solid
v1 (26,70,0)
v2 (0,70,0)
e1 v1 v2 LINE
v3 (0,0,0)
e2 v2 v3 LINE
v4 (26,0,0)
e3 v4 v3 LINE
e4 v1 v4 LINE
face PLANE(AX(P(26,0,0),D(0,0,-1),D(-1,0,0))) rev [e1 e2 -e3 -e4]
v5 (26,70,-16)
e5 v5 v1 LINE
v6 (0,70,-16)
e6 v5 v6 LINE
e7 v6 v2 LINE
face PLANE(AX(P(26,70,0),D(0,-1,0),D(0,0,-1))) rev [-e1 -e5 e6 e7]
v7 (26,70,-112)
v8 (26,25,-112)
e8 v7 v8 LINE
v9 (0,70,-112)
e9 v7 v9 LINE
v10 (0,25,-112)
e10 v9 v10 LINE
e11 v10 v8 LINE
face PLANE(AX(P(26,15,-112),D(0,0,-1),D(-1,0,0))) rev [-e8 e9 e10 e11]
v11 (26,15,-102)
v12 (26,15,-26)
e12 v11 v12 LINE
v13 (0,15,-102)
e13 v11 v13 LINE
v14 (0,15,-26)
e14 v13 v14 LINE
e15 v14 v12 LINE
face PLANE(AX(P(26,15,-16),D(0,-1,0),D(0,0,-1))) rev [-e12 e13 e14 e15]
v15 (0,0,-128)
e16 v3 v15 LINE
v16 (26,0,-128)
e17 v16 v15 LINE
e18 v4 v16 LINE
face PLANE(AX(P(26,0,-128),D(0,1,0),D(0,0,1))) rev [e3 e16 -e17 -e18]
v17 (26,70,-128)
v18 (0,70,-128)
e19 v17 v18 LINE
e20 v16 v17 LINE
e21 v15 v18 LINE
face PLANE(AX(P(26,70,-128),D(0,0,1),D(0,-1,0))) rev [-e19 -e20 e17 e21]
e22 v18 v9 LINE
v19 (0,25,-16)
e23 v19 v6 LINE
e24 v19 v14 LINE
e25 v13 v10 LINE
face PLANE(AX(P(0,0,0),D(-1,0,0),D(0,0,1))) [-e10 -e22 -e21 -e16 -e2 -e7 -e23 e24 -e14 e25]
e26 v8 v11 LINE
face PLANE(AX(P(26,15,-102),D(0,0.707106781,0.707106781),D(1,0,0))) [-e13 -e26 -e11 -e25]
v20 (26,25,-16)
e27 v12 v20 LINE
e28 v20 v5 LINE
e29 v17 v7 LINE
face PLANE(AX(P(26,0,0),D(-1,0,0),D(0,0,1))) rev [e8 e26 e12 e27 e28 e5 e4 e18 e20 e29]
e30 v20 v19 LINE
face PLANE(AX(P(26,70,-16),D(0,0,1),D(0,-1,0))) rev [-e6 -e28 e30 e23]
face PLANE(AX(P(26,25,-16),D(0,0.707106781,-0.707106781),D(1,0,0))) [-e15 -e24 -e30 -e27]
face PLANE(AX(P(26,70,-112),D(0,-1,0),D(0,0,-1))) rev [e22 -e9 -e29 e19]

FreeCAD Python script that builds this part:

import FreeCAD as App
import Part
import Sketcher
Q = App.Units.Quantity


def edges_at(feature, points):
    """Names of the edges that pass closest to the given points."""
    edges = feature.Shape.Edges
    near = lambda p: min(range(len(edges)), key=lambda i: edges[i].distToShape(Part.Vertex(*p))[0])
    return sorted({f"Edge{near(p) + 1}" for p in points})

doc = App.newDocument("Part")
body = doc.addObject("PartDesign::Body", "Body")

# Sketch on YZ plane
sketch1 = body.newObject("Sketcher::SketchObject", "Sketch")
sketch1.AttachmentSupport = (doc.getObject("YZ_Plane"), [""])
sketch1.MapMode = "FlatFace"
sketch1.addGeometry([
    Part.LineSegment(App.Vector(70, 0, 0), App.Vector(0, 0, 0)),  # 0
    Part.LineSegment(App.Vector(0, 0, 0), App.Vector(0, -128, 0)),  # 1
    Part.LineSegment(App.Vector(0, -128, 0), App.Vector(70, -128, 0)),  # 2
    Part.LineSegment(App.Vector(70, -128, 0), App.Vector(70, -112, 0)),  # 3
    Part.LineSegment(App.Vector(70, -112, 0), App.Vector(15, -112, 0)),  # 4
    Part.LineSegment(App.Vector(15, -112, 0), App.Vector(15, -16, 0)),  # 5
    Part.LineSegment(App.Vector(15, -16, 0), App.Vector(70, -16, 0)),  # 6
    Part.LineSegment(App.Vector(70, -16, 0), App.Vector(70, 0, 0)),  # 7
], False)
sketch1.addConstraint([
    Sketcher.Constraint("Coincident", 0, 2, 1, 1),
    Sketcher.Constraint("Coincident", 1, 2, 2, 1),
    Sketcher.Constraint("Coincident", 2, 2, 3, 1),
    Sketcher.Constraint("Coincident", 3, 2, 4, 1),
    Sketcher.Constraint("Coincident", 4, 2, 5, 1),
    Sketcher.Constraint("Coincident", 5, 2, 6, 1),
    Sketcher.Constraint("Coincident", 6, 2, 7, 1),
    Sketcher.Constraint("Coincident", 7, 2, 0, 1),
    Sketcher.Constraint("Horizontal", 0),
    Sketcher.Constraint("Vertical", 1),
    Sketcher.Constraint("Horizontal", 2),
    Sketcher.Constraint("Vertical", 3),
    Sketcher.Constraint("Horizontal", 4),
    Sketcher.Constraint("Vertical", 5),
    Sketcher.Constraint("Horizontal", 6),
    Sketcher.Constraint("Vertical", 7),
    Sketcher.Constraint("Coincident", 0, 2, -1, 1),
    Sketcher.Constraint("Vertical", 3, 2, 6, 2),
    Sketcher.Constraint("Equal", 3, 7),
    Sketcher.Constraint("DistanceX", 0, 2, 0, 1, Q("70 mm")),
    Sketcher.Constraint("DistanceX", 4, 2, 4, 1, Q("55 mm")),
    Sketcher.Constraint("DistanceY", 1, 2, 1, 1, Q("128 mm")),
    Sketcher.Constraint("DistanceY", 3, 1, 3, 2, Q("16 mm")),
])
pad1 = body.newObject("PartDesign::Pad", "Pad")
pad1.Profile = sketch1
pad1.Length = 26
doc.recompute()

chamfer = body.newObject("PartDesign::Chamfer", "Chamfer")
chamfer.Base = (pad1, edges_at(pad1, [(13, 15, -16), (13, 15, -112)]))
chamfer.Size = 10

doc.recompute()
